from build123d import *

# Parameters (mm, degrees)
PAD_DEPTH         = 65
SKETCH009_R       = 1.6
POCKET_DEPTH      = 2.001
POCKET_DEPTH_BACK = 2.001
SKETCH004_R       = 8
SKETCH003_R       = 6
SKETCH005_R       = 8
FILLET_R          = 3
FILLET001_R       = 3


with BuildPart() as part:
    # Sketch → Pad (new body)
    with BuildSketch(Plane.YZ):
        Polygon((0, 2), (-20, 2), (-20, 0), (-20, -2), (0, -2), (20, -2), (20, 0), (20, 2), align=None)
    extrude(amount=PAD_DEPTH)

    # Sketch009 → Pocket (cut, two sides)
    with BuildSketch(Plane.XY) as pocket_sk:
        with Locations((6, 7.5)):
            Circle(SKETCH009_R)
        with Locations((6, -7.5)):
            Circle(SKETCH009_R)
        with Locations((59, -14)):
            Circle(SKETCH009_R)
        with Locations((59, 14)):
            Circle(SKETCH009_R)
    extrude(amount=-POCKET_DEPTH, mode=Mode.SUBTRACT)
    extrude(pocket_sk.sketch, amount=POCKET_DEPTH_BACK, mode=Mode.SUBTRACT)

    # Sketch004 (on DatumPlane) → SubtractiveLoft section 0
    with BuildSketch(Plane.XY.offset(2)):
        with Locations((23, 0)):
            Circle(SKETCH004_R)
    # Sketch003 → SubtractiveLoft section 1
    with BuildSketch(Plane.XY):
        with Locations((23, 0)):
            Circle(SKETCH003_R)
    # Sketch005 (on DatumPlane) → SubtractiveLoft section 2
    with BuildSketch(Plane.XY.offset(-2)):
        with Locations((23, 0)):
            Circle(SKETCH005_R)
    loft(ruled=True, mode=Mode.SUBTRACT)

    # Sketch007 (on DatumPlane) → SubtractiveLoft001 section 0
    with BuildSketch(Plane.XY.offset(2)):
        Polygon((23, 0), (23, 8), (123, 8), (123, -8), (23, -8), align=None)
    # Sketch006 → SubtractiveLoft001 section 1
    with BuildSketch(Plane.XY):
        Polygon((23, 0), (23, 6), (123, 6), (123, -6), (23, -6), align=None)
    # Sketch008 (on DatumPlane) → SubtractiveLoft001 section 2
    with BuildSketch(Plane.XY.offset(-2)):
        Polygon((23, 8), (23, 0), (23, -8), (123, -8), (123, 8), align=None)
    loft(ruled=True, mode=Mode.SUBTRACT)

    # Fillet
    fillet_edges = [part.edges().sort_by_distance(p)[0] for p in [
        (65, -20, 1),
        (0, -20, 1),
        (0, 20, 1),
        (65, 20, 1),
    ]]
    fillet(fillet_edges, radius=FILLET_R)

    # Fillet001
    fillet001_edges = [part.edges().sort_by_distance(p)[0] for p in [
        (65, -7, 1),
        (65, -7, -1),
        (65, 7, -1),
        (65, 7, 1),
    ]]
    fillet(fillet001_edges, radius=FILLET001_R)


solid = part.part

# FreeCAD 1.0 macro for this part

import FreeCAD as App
import Part
import Sketcher

V = App.Vector


def edges_at(feature, points):
    """Names of the edges that pass closest to the given points."""
    edges = feature.Shape.Edges
    near = lambda p: min(range(len(edges)), key=lambda i: edges[i].distToShape(Part.Vertex(*p))[0])
    return sorted({f"Edge{near(p) + 1}" for p in points})


def add_polygon(sketch, points):
    """Adds a closed chain of lines whose ends are joined by coincident constraints."""
    first, n = sketch.GeometryCount, len(points)
    for a, b in zip(points, points[1:] + points[:1]):
        sketch.addGeometry(Part.LineSegment(App.Vector(*a, 0), App.Vector(*b, 0)), False)
    for i in range(n):
        sketch.addConstraint(Sketcher.Constraint("Coincident", first + i, 2, first + (i + 1) % n, 1))

doc = App.newDocument("Part")
body = doc.addObject("PartDesign::Body", "Body")

# Sketch on YZ plane
sketch1 = doc.addObject("Sketcher::SketchObject", "Sketch")
body.addObject(sketch1)
sketch1.AttachmentSupport = (doc.YZ_Plane, [""])
sketch1.MapMode = "FlatFace"
add_polygon(sketch1, [(-20, 2), (-20, -2), (20, -2), (20, 2)])  # lines 0-3
sketch1.addConstraint([
    Sketcher.Constraint("Vertical", 0),
    Sketcher.Constraint("Horizontal", 1),
    Sketcher.Constraint("Vertical", 2),
    Sketcher.Constraint("Horizontal", 3),
    Sketcher.Constraint("Symmetric", 0, 2, 2, 2, -1, 1),
    Sketcher.Constraint("DistanceX", 1, 1, 1, 2, 40.0),
    Sketcher.Constraint("DistanceY", 0, 2, 0, 1, 4.0),
])
pad1 = doc.addObject("PartDesign::Pad", "Pad")
body.addObject(pad1)
pad1.Profile = sketch1
pad1.Length = 65

# Sketch on XY plane
sketch2 = doc.addObject("Sketcher::SketchObject", "Sketch001")
body.addObject(sketch2)
sketch2.AttachmentSupport = (doc.XY_Plane, [""])
sketch2.MapMode = "FlatFace"
sketch2.addGeometry([
    Part.Circle(V(6, 7.5, 0), V(0, 0, 1), 1.6),
    Part.Circle(V(6, -7.5, 0), V(0, 0, 1), 1.6),
    Part.Circle(V(59, -14, 0), V(0, 0, 1), 1.6),
    Part.Circle(V(59, 14, 0), V(0, 0, 1), 1.6),
], False)
sketch2.addConstraint([
    Sketcher.Constraint("Equal", 0, 1),
    Sketcher.Constraint("Equal", 1, 2),
    Sketcher.Constraint("Equal", 2, 3),
    Sketcher.Constraint("Symmetric", 0, 3, 1, 3, -1),
    Sketcher.Constraint("Symmetric", 2, 3, 3, 3, -1),
    Sketcher.Constraint("Diameter", 0, 3.2),
    Sketcher.Constraint("DistanceX", -1, 1, 0, 3, 6.0),
    Sketcher.Constraint("DistanceX", -1, 1, 2, 3, 59.0),
    Sketcher.Constraint("DistanceY", 2, 3, -1, 1, 14.0),
    Sketcher.Constraint("DistanceY", 1, 3, 0, 3, 15.0),
])
pocket1 = doc.addObject("PartDesign::Pocket", "Pocket")
body.addObject(pocket1)
pocket1.Profile = sketch2
pocket1.Type = "ThroughAll"
pocket1.Midplane = True

# Sketch on XY plane
sketch3 = doc.addObject("Sketcher::SketchObject", "Sketch002")
body.addObject(sketch3)
sketch3.AttachmentSupport = (doc.XY_Plane, [""])
sketch3.MapMode = "FlatFace"
sketch3.AttachmentOffset = App.Placement(V(0, 0, 2), App.Rotation())
sketch3.addGeometry(Part.Circle(V(23, 0, 0), V(0, 0, 1), 8), False)
sketch3.addConstraint([
    Sketcher.Constraint("PointOnObject", 0, 3, -1),
    Sketcher.Constraint("Diameter", 0, 16.0),
    Sketcher.Constraint("DistanceX", -1, 1, 0, 3, 23.0),
])

# Sketch on XY plane
sketch4 = doc.addObject("Sketcher::SketchObject", "Sketch003")
body.addObject(sketch4)
sketch4.AttachmentSupport = (doc.XY_Plane, [""])
sketch4.MapMode = "FlatFace"
sketch4.addGeometry(Part.Circle(V(23, 0, 0), V(0, 0, 1), 6), False)
sketch4.addConstraint([
    Sketcher.Constraint("PointOnObject", 0, 3, -1),
    Sketcher.Constraint("Diameter", 0, 12.0),
    Sketcher.Constraint("DistanceX", -1, 1, 0, 3, 23.0),
])

# Sketch on XY plane
sketch5 = doc.addObject("Sketcher::SketchObject", "Sketch004")
body.addObject(sketch5)
sketch5.AttachmentSupport = (doc.XY_Plane, [""])
sketch5.MapMode = "FlatFace"
sketch5.AttachmentOffset = App.Placement(V(0, 0, -2), App.Rotation())
sketch5.addGeometry(Part.Circle(V(23, 0, 0), V(0, 0, 1), 8), False)
sketch5.addConstraint([
    Sketcher.Constraint("PointOnObject", 0, 3, -1),
    Sketcher.Constraint("Diameter", 0, 16.0),
    Sketcher.Constraint("DistanceX", -1, 1, 0, 3, 23.0),
])

subtractiveloft = doc.addObject("PartDesign::SubtractiveLoft", "SubtractiveLoft")
body.addObject(subtractiveloft)
subtractiveloft.Profile = sketch3
subtractiveloft.Sections = [sketch4, sketch5]
subtractiveloft.Ruled = True

# Sketch on XY plane
sketch6 = doc.addObject("Sketcher::SketchObject", "Sketch005")
body.addObject(sketch6)
sketch6.AttachmentSupport = (doc.XY_Plane, [""])
sketch6.MapMode = "FlatFace"
sketch6.AttachmentOffset = App.Placement(V(0, 0, 2), App.Rotation())
add_polygon(sketch6, [(23, 8), (23, -8), (123, -8), (123, 8)])  # lines 0-3
sketch6.addConstraint([
    Sketcher.Constraint("Vertical", 0),
    Sketcher.Constraint("Horizontal", 1),
    Sketcher.Constraint("Vertical", 2),
    Sketcher.Constraint("Horizontal", 3),
    Sketcher.Constraint("DistanceX", 1, 1, 1, 2, 100.0),
    Sketcher.Constraint("DistanceY", 0, 2, 0, 1, 16.0),
    Sketcher.Constraint("DistanceX", -1, 1, 0, 2, 23.0),
    Sketcher.Constraint("DistanceY", 0, 2, -1, 1, 8.0),
])

# Sketch on XY plane
sketch7 = doc.addObject("Sketcher::SketchObject", "Sketch006")
body.addObject(sketch7)
sketch7.AttachmentSupport = (doc.XY_Plane, [""])
sketch7.MapMode = "FlatFace"
add_polygon(sketch7, [(23, 6), (23, -6), (123, -6), (123, 6)])  # lines 0-3
sketch7.addConstraint([
    Sketcher.Constraint("Vertical", 0),
    Sketcher.Constraint("Horizontal", 1),
    Sketcher.Constraint("Vertical", 2),
    Sketcher.Constraint("Horizontal", 3),
    Sketcher.Constraint("DistanceX", 1, 1, 1, 2, 100.0),
    Sketcher.Constraint("DistanceY", 0, 2, 0, 1, 12.0),
    Sketcher.Constraint("DistanceX", -1, 1, 0, 2, 23.0),
    Sketcher.Constraint("DistanceY", 0, 2, -1, 1, 6.0),
])

# Sketch on XY plane
sketch8 = doc.addObject("Sketcher::SketchObject", "Sketch007")
body.addObject(sketch8)
sketch8.AttachmentSupport = (doc.XY_Plane, [""])
sketch8.MapMode = "FlatFace"
sketch8.AttachmentOffset = App.Placement(V(0, 0, -2), App.Rotation())
add_polygon(sketch8, [(23, 8), (23, -8), (123, -8), (123, 8)])  # lines 0-3
sketch8.addConstraint([
    Sketcher.Constraint("Vertical", 0),
    Sketcher.Constraint("Horizontal", 1),
    Sketcher.Constraint("Vertical", 2),
    Sketcher.Constraint("Horizontal", 3),
    Sketcher.Constraint("DistanceX", 1, 1, 1, 2, 100.0),
    Sketcher.Constraint("DistanceY", 0, 2, 0, 1, 16.0),
    Sketcher.Constraint("DistanceX", -1, 1, 0, 2, 23.0),
    Sketcher.Constraint("DistanceY", 0, 2, -1, 1, 8.0),
])

subtractiveloft2 = doc.addObject("PartDesign::SubtractiveLoft", "SubtractiveLoft001")
body.addObject(subtractiveloft2)
subtractiveloft2.Profile = sketch6
subtractiveloft2.Sections = [sketch7, sketch8]
subtractiveloft2.Ruled = True
doc.recompute()

fillet = doc.addObject("PartDesign::Fillet", "Fillet")
body.addObject(fillet)
fillet.Base = (subtractiveloft2, edges_at(subtractiveloft2, [
    (65, -20, 0),
    (0, -20, 0),
    (0, 20, 0),
    (65, 20, 0),
]))
fillet.Radius = 3
doc.recompute()

fillet2 = doc.addObject("PartDesign::Fillet", "Fillet001")
body.addObject(fillet2)
fillet2.Base = (fillet, edges_at(fillet, [
    (65, -7, 1),
    (65, -7, -1),
    (65, 7, -1),
    (65, 7, 1),
]))
fillet2.Radius = 3

doc.recompute()
